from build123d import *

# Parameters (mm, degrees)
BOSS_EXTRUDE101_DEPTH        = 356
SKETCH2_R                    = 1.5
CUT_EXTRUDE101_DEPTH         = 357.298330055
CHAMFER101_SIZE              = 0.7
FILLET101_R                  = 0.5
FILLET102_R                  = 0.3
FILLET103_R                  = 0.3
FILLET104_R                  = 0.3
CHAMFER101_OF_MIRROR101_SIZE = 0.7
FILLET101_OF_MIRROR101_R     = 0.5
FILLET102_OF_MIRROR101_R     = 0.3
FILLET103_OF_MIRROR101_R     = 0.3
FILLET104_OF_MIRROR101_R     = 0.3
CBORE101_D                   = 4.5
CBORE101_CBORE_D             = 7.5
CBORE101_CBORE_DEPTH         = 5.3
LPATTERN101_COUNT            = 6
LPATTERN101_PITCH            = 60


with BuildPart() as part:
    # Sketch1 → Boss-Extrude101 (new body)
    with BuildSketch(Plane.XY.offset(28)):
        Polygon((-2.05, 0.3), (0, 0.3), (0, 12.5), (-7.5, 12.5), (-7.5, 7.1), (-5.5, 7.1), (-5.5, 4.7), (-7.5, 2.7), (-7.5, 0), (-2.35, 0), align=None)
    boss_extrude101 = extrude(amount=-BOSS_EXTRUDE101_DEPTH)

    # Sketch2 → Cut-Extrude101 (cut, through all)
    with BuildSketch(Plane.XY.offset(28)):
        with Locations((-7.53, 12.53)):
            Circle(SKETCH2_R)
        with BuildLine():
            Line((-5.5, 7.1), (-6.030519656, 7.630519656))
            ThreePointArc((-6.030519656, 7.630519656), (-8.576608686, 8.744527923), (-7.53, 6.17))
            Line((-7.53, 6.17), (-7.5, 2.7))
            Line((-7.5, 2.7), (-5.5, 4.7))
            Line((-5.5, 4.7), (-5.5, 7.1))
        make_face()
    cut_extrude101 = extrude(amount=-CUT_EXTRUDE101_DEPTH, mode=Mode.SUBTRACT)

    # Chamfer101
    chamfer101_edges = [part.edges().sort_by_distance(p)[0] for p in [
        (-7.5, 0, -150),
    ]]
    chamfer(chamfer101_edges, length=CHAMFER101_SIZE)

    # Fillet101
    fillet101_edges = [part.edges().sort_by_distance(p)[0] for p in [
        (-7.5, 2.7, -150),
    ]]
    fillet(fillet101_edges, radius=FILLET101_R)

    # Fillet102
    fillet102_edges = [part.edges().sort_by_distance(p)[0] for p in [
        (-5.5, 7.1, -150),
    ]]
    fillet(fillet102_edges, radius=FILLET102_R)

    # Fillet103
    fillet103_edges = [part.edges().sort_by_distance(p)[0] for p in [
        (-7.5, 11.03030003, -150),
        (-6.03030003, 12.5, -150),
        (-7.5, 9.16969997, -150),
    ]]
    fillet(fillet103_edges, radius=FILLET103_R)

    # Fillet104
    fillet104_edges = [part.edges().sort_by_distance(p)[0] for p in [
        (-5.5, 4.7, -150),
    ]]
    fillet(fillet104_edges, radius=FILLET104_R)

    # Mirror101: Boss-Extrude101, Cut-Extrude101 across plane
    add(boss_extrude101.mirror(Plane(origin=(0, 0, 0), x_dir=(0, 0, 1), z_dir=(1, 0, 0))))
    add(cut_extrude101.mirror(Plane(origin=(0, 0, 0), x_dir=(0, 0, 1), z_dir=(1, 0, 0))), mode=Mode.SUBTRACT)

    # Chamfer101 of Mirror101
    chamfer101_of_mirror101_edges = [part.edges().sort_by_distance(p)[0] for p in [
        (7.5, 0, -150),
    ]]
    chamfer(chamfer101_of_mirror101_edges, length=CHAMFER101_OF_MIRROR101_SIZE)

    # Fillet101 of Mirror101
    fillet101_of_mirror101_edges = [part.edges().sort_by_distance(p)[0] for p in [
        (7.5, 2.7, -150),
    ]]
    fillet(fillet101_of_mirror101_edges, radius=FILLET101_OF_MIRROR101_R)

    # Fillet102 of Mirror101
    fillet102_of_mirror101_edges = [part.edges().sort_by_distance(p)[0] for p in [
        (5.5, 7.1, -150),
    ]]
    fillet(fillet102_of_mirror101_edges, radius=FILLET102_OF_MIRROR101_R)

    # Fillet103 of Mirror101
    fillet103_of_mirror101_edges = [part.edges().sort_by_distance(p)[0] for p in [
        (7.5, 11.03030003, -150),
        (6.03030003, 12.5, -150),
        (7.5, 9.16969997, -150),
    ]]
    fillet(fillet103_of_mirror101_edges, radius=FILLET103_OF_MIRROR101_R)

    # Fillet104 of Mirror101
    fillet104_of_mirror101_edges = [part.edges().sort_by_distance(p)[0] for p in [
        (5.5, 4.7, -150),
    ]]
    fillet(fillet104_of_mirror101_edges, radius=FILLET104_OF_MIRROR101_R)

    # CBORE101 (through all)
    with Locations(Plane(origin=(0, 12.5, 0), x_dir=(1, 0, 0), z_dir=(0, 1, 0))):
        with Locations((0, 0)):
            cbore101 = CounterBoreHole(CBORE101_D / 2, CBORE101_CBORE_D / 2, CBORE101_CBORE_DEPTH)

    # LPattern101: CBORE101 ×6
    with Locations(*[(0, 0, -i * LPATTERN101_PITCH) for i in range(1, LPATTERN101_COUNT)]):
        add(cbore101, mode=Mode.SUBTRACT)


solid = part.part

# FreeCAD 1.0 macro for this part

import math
import FreeCAD as App
import Part
import Sketcher
Q = App.Units.Quantity


def edges_at(feature, points):
    """Names of the edges that pass closest to the given points."""
    edges = feature.Shape.Edges
    near = lambda p: min(range(len(edges)), key=lambda i: edges[i].distToShape(Part.Vertex(*p))[0])
    return sorted({f"Edge{near(p) + 1}" for p in points})

doc = App.newDocument("Part")
body = doc.addObject("PartDesign::Body", "Body")

sketch1 = doc.addObject("Sketcher::SketchObject", "Sketch")
body.addObject(sketch1)
sketch1.AttachmentSupport = (doc.XY_Plane, [""])
sketch1.MapMode = "FlatFace"
sketch1.AttachmentOffset = App.Placement(App.Vector(0, 0, 28), App.Rotation())
sketch1.addGeometry([
    Part.LineSegment(App.Vector(-2.05, 0.3, 0), App.Vector(0, 0.3, 0)),
    Part.LineSegment(App.Vector(0, 0.3, 0), App.Vector(0, 12.5, 0)),
    Part.LineSegment(App.Vector(0, 12.5, 0), App.Vector(-7.5, 12.5, 0)),
    Part.LineSegment(App.Vector(-7.5, 12.5, 0), App.Vector(-7.5, 7.1, 0)),
    Part.LineSegment(App.Vector(-7.5, 7.1, 0), App.Vector(-5.5, 7.1, 0)),
    Part.LineSegment(App.Vector(-5.5, 7.1, 0), App.Vector(-5.5, 4.7, 0)),
    Part.LineSegment(App.Vector(-5.5, 4.7, 0), App.Vector(-7.5, 2.7, 0)),
    Part.LineSegment(App.Vector(-7.5, 2.7, 0), App.Vector(-7.5, 0, 0)),
    Part.LineSegment(App.Vector(-7.5, 0, 0), App.Vector(-2.35, 0, 0)),
    Part.LineSegment(App.Vector(-2.35, 0, 0), App.Vector(-2.05, 0.3, 0)),
], False)
sketch1.addConstraint([
    Sketcher.Constraint("Coincident", 0, 2, 1, 1),
    Sketcher.Constraint("Coincident", 1, 2, 2, 1),
    Sketcher.Constraint("Coincident", 2, 2, 3, 1),
    Sketcher.Constraint("Coincident", 3, 2, 4, 1),
    Sketcher.Constraint("Coincident", 4, 2, 5, 1),
    Sketcher.Constraint("Coincident", 5, 2, 6, 1),
    Sketcher.Constraint("Coincident", 6, 2, 7, 1),
    Sketcher.Constraint("Coincident", 7, 2, 8, 1),
    Sketcher.Constraint("Coincident", 8, 2, 9, 1),
    Sketcher.Constraint("Coincident", 9, 2, 0, 1),
    Sketcher.Constraint("Horizontal", 0),
    Sketcher.Constraint("Vertical", 1),
    Sketcher.Constraint("Horizontal", 2),
    Sketcher.Constraint("Vertical", 3),
    Sketcher.Constraint("Horizontal", 4),
    Sketcher.Constraint("Vertical", 5),
    Sketcher.Constraint("Vertical", 7),
    Sketcher.Constraint("Horizontal", 8),
    Sketcher.Constraint("PointOnObject", 0, 2, -2),
    Sketcher.Constraint("PointOnObject", 7, 2, -1),
    Sketcher.Constraint("Parallel", 6, 9),
    Sketcher.Constraint("Vertical", 3, 2, 6, 2),
    Sketcher.Constraint("DistanceX", 4, 1, 4, 2, 2.0),
    Sketcher.Constraint("Angle", 6, Q("-135 deg")),
    Sketcher.Constraint("DistanceX", 2, 2, 2, 1, 7.5),
    Sketcher.Constraint("DistanceY", 1, 1, 1, 2, 12.2),
    Sketcher.Constraint("DistanceY", 3, 2, 3, 1, 5.4),
    Sketcher.Constraint("DistanceY", 5, 2, 5, 1, 2.4),
    Sketcher.Constraint("DistanceY", 7, 2, 7, 1, 2.7),
    Sketcher.Constraint("DistanceX", 0, 1, 0, 2, 2.05),
])
pad1 = doc.addObject("PartDesign::Pad", "Pad")
body.addObject(pad1)
pad1.Profile = sketch1
pad1.Length = 356
pad1.Reversed = True

sketch2 = doc.addObject("Sketcher::SketchObject", "Sketch001")
body.addObject(sketch2)
sketch2.AttachmentSupport = (doc.XY_Plane, [""])
sketch2.MapMode = "FlatFace"
sketch2.AttachmentOffset = App.Placement(App.Vector(0, 0, 28), App.Rotation())
sketch2.addGeometry([
    Part.Circle(App.Vector(-7.53, 12.53, 0), App.Vector(0, 0, 1), 1.5),
    Part.LineSegment(App.Vector(-5.5, 7.1, 0), App.Vector(-6.03052, 7.63052, 0)),
    Part.ArcOfCircle(Part.Circle(App.Vector(-7.53, 7.67, 0), App.Vector(0, 0, 1), 1.5), math.radians(-1.508212), math.radians(270)),
    Part.LineSegment(App.Vector(-7.53, 6.17, 0), App.Vector(-7.5, 2.7, 0)),
    Part.LineSegment(App.Vector(-7.5, 2.7, 0), App.Vector(-5.5, 4.7, 0)),
    Part.LineSegment(App.Vector(-5.5, 4.7, 0), App.Vector(-5.5, 7.1, 0)),
], False)
sketch2.addConstraint([
    Sketcher.Constraint("Coincident", 1, 2, 2, 1),
    Sketcher.Constraint("Coincident", 2, 2, 3, 1),
    Sketcher.Constraint("Coincident", 3, 2, 4, 1),
    Sketcher.Constraint("Coincident", 4, 2, 5, 1),
    Sketcher.Constraint("Coincident", 5, 2, 1, 1),
    Sketcher.Constraint("Vertical", 5),
    Sketcher.Constraint("Equal", 0, 2),
    Sketcher.Constraint("Perpendicular", 1, 4),
    Sketcher.Constraint("Vertical", 0, 3, 2, 3),
    Sketcher.Constraint("Vertical", 0, 3, 2, 2),
    Sketcher.Constraint("Diameter", 0, 3.0),
    Sketcher.Constraint("Angle", 1, Q("135 deg")),
    Sketcher.Constraint("DistanceY", 5, 1, 5, 2, 2.4),
    Sketcher.Constraint("DistanceX", 3, 2, 4, 2, 2.0),
    Sketcher.Constraint("DistanceX", 3, 2, -1, 1, 7.5),
    Sketcher.Constraint("DistanceY", -1, 1, 3, 2, 2.7),
    Sketcher.Constraint("DistanceX", 0, 3, -1, 1, 7.53),
    Sketcher.Constraint("DistanceY", -1, 1, 0, 3, 12.53),
    Sketcher.Constraint("DistanceY", -1, 1, 2, 3, 7.67),
])
pocket1 = doc.addObject("PartDesign::Pocket", "Pocket")
body.addObject(pocket1)
pocket1.Profile = sketch2
pocket1.Type = "ThroughAll"
doc.recompute()

chamfer = doc.addObject("PartDesign::Chamfer", "Chamfer")
body.addObject(chamfer)
chamfer.Base = (pocket1, edges_at(pocket1, [(-7.5, 0, -150)]))
chamfer.Size = 0.7
doc.recompute()

fillet = doc.addObject("PartDesign::Fillet", "Fillet")
body.addObject(fillet)
fillet.Base = (chamfer, edges_at(chamfer, [(-7.5, 2.7, -150)]))
fillet.Radius = 0.5
doc.recompute()

fillet2 = doc.addObject("PartDesign::Fillet", "Fillet001")
body.addObject(fillet2)
fillet2.Base = (fillet, edges_at(fillet, [(-5.5, 7.1, -150)]))
fillet2.Radius = 0.3
doc.recompute()

fillet3 = doc.addObject("PartDesign::Fillet", "Fillet002")
body.addObject(fillet3)
fillet3.Base = (fillet2, edges_at(fillet2, [(-7.5, 11.03, -150), (-6.03, 12.5, -150), (-7.5, 9.17, -150)]))
fillet3.Radius = 0.3
doc.recompute()

fillet4 = doc.addObject("PartDesign::Fillet", "Fillet003")
body.addObject(fillet4)
fillet4.Base = (fillet3, edges_at(fillet3, [(-5.5, 4.7, -150)]))
fillet4.Radius = 0.3
doc.recompute()

mirrored = doc.addObject("PartDesign::Mirrored", "Mirrored")
body.addObject(mirrored)
mirrored.Originals = [pad1, pocket1]
mirrored.MirrorPlane = (doc.YZ_Plane, [""])
body.Tip = mirrored
doc.recompute()

chamfer2 = doc.addObject("PartDesign::Chamfer", "Chamfer001")
body.addObject(chamfer2)
chamfer2.Base = (mirrored, edges_at(mirrored, [(7.5, 0, -150)]))
chamfer2.Size = 0.7
doc.recompute()

fillet5 = doc.addObject("PartDesign::Fillet", "Fillet004")
body.addObject(fillet5)
fillet5.Base = (chamfer2, edges_at(chamfer2, [(7.5, 2.7, -150)]))
fillet5.Radius = 0.5
doc.recompute()

fillet6 = doc.addObject("PartDesign::Fillet", "Fillet005")
body.addObject(fillet6)
fillet6.Base = (fillet5, edges_at(fillet5, [(5.5, 7.1, -150)]))
fillet6.Radius = 0.3
doc.recompute()

fillet7 = doc.addObject("PartDesign::Fillet", "Fillet006")
body.addObject(fillet7)
fillet7.Base = (fillet6, edges_at(fillet6, [(7.5, 11.03, -150), (6.03, 12.5, -150), (7.5, 9.17, -150)]))
fillet7.Radius = 0.3
doc.recompute()

fillet8 = doc.addObject("PartDesign::Fillet", "Fillet007")
body.addObject(fillet8)
fillet8.Base = (fillet7, edges_at(fillet7, [(5.5, 4.7, -150)]))
fillet8.Radius = 0.3

sketch3 = doc.addObject("Sketcher::SketchObject", "Sketch002")
body.addObject(sketch3)
sketch3.AttachmentSupport = (doc.XZ_Plane, [""])
sketch3.MapMode = "FlatFace"
sketch3.AttachmentOffset = App.Placement(App.Vector(0, 0, -12.5), App.Rotation())
sketch3.addGeometry(Part.Circle(App.Vector(0, 0, 0), App.Vector(0, 0, 1), 2.25), False)
sketch3.addConstraint([
    Sketcher.Constraint("Coincident", 0, 3, -1, 1),
    Sketcher.Constraint("Diameter", 0, 4.5),
])
doc.recompute()
hole = doc.addObject("PartDesign::Hole", "Hole")
body.addObject(hole)
hole.Profile = sketch3
hole.ThreadType = "None"
hole.Diameter = 4.5
hole.DepthType = "ThroughAll"
hole.HoleCutType = "Counterbore"
hole.HoleCutDiameter = 7.5
hole.HoleCutDepth = 5.3
hole.Reversed = True
doc.recompute()

linearpattern = doc.addObject("PartDesign::LinearPattern", "LinearPattern")
body.addObject(linearpattern)
linearpattern.Originals = [hole]
linearpattern.Direction = (doc.Z_Axis, [""])
linearpattern.Mode = "offset"
linearpattern.Offset = 60
linearpattern.Occurrences = 6
linearpattern.Reversed = True
body.Tip = linearpattern

doc.recompute()
